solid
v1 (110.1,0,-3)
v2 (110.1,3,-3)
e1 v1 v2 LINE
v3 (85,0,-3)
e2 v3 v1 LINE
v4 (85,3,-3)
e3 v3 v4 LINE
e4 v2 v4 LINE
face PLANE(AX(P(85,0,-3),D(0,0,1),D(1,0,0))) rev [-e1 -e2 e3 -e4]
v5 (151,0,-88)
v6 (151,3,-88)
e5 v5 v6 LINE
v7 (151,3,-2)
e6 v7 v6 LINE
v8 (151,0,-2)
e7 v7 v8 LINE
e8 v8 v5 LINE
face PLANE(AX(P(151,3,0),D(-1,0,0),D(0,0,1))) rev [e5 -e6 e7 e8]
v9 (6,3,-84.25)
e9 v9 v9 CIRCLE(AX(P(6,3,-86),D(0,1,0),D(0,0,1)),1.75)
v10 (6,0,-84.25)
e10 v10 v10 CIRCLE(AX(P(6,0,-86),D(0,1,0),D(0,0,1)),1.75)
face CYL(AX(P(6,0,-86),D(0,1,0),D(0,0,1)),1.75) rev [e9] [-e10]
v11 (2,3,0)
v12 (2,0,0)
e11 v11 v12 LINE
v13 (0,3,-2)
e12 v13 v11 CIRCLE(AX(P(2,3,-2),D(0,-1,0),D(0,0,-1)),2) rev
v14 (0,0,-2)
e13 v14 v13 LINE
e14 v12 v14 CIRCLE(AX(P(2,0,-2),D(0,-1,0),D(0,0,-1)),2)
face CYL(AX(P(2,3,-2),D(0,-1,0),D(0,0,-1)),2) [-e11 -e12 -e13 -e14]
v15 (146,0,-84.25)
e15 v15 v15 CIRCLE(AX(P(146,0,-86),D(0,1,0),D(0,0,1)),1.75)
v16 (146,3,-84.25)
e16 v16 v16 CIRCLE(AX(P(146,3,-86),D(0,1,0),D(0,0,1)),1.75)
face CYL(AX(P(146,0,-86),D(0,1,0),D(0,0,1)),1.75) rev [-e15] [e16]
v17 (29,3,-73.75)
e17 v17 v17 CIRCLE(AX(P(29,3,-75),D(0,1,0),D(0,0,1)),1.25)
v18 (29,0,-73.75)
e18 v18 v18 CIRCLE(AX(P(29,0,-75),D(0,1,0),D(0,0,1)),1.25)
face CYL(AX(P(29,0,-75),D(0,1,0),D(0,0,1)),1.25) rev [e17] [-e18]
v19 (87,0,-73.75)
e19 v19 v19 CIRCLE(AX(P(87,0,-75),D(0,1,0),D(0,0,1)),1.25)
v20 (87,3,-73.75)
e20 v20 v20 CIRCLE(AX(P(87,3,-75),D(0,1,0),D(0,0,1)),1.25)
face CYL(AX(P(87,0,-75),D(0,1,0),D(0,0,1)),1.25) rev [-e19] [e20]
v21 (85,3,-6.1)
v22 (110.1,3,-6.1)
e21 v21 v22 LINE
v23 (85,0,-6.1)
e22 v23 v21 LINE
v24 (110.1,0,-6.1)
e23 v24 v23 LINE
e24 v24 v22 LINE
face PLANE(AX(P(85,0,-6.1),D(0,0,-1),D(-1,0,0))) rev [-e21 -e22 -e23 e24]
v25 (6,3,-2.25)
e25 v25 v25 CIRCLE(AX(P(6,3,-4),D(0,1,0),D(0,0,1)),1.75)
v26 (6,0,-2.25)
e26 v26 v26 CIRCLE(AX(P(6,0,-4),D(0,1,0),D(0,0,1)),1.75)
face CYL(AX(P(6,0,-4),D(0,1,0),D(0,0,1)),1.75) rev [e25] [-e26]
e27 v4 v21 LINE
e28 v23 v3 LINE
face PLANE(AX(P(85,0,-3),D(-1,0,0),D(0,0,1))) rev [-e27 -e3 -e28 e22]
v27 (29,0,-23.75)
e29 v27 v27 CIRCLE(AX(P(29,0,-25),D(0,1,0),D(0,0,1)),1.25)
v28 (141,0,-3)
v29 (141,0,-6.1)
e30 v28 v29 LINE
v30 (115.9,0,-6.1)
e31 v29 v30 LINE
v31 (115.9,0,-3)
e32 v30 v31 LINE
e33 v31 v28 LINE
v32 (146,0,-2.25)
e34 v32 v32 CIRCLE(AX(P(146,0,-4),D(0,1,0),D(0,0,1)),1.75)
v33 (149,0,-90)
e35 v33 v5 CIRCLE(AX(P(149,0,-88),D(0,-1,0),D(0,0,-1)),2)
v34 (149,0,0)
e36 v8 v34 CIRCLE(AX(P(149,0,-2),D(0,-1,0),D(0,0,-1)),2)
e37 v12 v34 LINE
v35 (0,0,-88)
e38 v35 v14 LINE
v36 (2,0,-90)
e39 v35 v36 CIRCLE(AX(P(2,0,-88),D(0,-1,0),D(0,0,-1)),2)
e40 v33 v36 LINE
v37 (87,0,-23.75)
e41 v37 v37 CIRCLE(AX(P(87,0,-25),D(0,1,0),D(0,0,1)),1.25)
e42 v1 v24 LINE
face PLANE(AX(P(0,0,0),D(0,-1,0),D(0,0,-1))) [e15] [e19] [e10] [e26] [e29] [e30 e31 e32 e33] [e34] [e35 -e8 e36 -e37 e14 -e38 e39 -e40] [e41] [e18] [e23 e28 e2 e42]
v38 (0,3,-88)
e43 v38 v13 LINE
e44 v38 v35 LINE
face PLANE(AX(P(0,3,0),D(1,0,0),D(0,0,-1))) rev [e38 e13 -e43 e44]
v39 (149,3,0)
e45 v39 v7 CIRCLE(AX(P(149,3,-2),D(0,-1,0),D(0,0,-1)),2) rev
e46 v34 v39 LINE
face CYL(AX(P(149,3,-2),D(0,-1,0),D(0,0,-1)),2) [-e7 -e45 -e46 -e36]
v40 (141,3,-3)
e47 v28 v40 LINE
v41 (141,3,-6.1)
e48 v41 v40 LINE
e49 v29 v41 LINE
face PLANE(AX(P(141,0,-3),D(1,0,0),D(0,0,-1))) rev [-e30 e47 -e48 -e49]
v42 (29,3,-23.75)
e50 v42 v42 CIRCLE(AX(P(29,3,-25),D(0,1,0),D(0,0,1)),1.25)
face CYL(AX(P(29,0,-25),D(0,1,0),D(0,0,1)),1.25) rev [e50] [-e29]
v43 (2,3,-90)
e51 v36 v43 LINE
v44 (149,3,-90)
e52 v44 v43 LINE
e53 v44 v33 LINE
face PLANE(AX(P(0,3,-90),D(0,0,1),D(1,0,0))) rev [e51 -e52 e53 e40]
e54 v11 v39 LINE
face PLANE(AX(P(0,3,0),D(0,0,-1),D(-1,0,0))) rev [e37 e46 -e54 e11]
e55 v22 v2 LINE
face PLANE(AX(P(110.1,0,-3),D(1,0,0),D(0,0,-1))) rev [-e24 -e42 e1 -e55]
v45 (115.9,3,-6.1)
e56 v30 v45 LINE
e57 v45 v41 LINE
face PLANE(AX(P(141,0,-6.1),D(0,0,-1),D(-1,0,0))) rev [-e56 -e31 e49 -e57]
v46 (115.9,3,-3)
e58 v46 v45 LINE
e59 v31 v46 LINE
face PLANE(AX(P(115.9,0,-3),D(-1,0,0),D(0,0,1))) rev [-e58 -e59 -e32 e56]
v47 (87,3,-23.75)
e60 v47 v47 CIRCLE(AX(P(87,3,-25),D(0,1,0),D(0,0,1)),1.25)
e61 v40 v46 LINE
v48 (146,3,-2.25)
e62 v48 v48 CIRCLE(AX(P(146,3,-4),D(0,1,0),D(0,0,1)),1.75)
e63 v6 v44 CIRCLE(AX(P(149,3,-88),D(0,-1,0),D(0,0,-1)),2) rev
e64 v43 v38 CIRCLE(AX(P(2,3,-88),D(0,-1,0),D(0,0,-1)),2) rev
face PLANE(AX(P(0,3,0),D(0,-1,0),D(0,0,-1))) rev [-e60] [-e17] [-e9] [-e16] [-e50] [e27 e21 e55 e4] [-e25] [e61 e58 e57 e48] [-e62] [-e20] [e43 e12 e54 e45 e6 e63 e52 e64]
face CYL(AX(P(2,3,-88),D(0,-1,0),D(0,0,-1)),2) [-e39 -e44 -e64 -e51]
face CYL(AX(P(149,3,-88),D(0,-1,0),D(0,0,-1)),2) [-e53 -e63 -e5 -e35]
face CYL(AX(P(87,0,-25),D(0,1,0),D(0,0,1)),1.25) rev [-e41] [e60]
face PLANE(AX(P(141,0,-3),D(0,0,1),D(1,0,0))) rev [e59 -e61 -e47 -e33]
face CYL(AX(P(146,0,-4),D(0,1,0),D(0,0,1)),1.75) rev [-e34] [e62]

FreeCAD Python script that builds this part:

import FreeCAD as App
import Part
import Sketcher

V = App.Vector


def edges_at(feature, points):
    """Names of the edges that pass closest to the given points."""
    edges = feature.Shape.Edges
    near = lambda p: min(range(len(edges)), key=lambda i: edges[i].distToShape(Part.Vertex(*p))[0])
    return sorted({f"Edge{near(p) + 1}" for p in points})


def add_polygon(sketch, points):
    """Adds a closed chain of lines whose ends are joined by coincident constraints."""
    first, n = sketch.GeometryCount, len(points)
    for a, b in zip(points, points[1:] + points[:1]):
        sketch.addGeometry(Part.LineSegment(App.Vector(*a, 0), App.Vector(*b, 0)), False)
    for i in range(n):
        sketch.addConstraint(Sketcher.Constraint("Coincident", first + i, 2, first + (i + 1) % n, 1))

doc = App.newDocument("Part")
body = doc.addObject("PartDesign::Body", "Body")

sketch1 = body.newObject("Sketcher::SketchObject", "Sketch")
sketch1.AttachmentSupport = (doc.getObject("XZ_Plane"), [""])
sketch1.MapMode = "FlatFace"
add_polygon(sketch1, [(0, -90), (0, 0), (151, 0), (151, -90)])
sketch1.addConstraint(Sketcher.Constraint("Vertical", 0))
sketch1.addConstraint(Sketcher.Constraint("Horizontal", 1))
sketch1.addConstraint(Sketcher.Constraint("Vertical", 2))
sketch1.addConstraint(Sketcher.Constraint("Horizontal", 3))
sketch1.addConstraint(Sketcher.Constraint("Coincident", 0, 2, -1, 1))
sketch1.addConstraint(Sketcher.Constraint("DistanceX", 1, 1, 1, 2, 151.0))
sketch1.addConstraint(Sketcher.Constraint("DistanceY", 0, 1, 0, 2, 90.0))
pad1 = body.newObject("PartDesign::Pad", "Pad")
pad1.Profile = sketch1
pad1.Length = 3
pad1.Reversed = True

sketch2 = body.newObject("Sketcher::SketchObject", "Sketch001")
sketch2.AttachmentSupport = (doc.getObject("XZ_Plane"), [""])
sketch2.MapMode = "FlatFace"
sketch2.AttachmentOffset = App.Placement(V(0, 0, -3), App.Rotation())
sketch2.addGeometry(Part.Circle(V(146, -86, 0), V(0, 0, 1), 1.75), False)
sketch2.addGeometry(Part.Circle(V(146, -4, 0), V(0, 0, 1), 1.75), False)
sketch2.addGeometry(Part.Circle(V(6, -86, 0), V(0, 0, 1), 1.75), False)
sketch2.addGeometry(Part.Circle(V(6, -4, 0), V(0, 0, 1), 1.75), False)
sketch2.addConstraint(Sketcher.Constraint("Equal", 0, 1))
sketch2.addConstraint(Sketcher.Constraint("Equal", 1, 2))
sketch2.addConstraint(Sketcher.Constraint("Equal", 2, 3))
sketch2.addConstraint(Sketcher.Constraint("Horizontal", 0, 3, 2, 3))
sketch2.addConstraint(Sketcher.Constraint("Horizontal", 1, 3, 3, 3))
sketch2.addConstraint(Sketcher.Constraint("Vertical", 0, 3, 1, 3))
sketch2.addConstraint(Sketcher.Constraint("Vertical", 2, 3, 3, 3))
sketch2.addConstraint(Sketcher.Constraint("Diameter", 0, 3.5))
sketch2.addConstraint(Sketcher.Constraint("DistanceX", -1, 1, 0, 3, 146.0))
sketch2.addConstraint(Sketcher.Constraint("DistanceY", 0, 3, -1, 1, 86.0))
sketch2.addConstraint(Sketcher.Constraint("DistanceY", 1, 3, -1, 1, 4.0))
sketch2.addConstraint(Sketcher.Constraint("DistanceX", -1, 1, 2, 3, 6.0))
pocket1 = body.newObject("PartDesign::Pocket", "Pocket")
pocket1.Profile = sketch2
pocket1.Type = "ThroughAll"
pocket1.Reversed = True
doc.recompute()

fillet = body.newObject("PartDesign::Fillet", "Fillet")
fillet.Base = (pocket1, edges_at(pocket1, [
    (0, 1.5, -90),
    (151, 1.5, -90),
    (151, 1.5, 0),
    (0, 1.5, 0),
]))
fillet.Radius = 2

sketch3 = body.newObject("Sketcher::SketchObject", "Sketch002")
sketch3.AttachmentSupport = (doc.getObject("XZ_Plane"), [""])
sketch3.MapMode = "FlatFace"
sketch3.AttachmentOffset = App.Placement(V(0, 0, -3), App.Rotation())
sketch3.addGeometry(Part.Circle(V(87, -75, 0), V(0, 0, 1), 1.25), False)
sketch3.addGeometry(Part.Circle(V(29, -75, 0), V(0, 0, 1), 1.25), False)
sketch3.addGeometry(Part.Circle(V(87, -25, 0), V(0, 0, 1), 1.25), False)
sketch3.addGeometry(Part.Circle(V(29, -25, 0), V(0, 0, 1), 1.25), False)
sketch3.addConstraint(Sketcher.Constraint("Equal", 0, 1))
sketch3.addConstraint(Sketcher.Constraint("Equal", 1, 2))
sketch3.addConstraint(Sketcher.Constraint("Equal", 2, 3))
sketch3.addConstraint(Sketcher.Constraint("Horizontal", 0, 3, 1, 3))
sketch3.addConstraint(Sketcher.Constraint("Horizontal", 2, 3, 3, 3))
sketch3.addConstraint(Sketcher.Constraint("Vertical", 0, 3, 2, 3))
sketch3.addConstraint(Sketcher.Constraint("Vertical", 1, 3, 3, 3))
sketch3.addConstraint(Sketcher.Constraint("Diameter", 0, 2.5))
sketch3.addConstraint(Sketcher.Constraint("DistanceX", -1, 1, 0, 3, 87.0))
sketch3.addConstraint(Sketcher.Constraint("DistanceY", 0, 3, -1, 1, 75.0))
sketch3.addConstraint(Sketcher.Constraint("DistanceX", -1, 1, 1, 3, 29.0))
sketch3.addConstraint(Sketcher.Constraint("DistanceY", 2, 3, -1, 1, 25.0))
pocket2 = body.newObject("PartDesign::Pocket", "Pocket001")
pocket2.Profile = sketch3
pocket2.Type = "ThroughAll"
pocket2.Reversed = True

sketch4 = body.newObject("Sketcher::SketchObject", "Sketch003")
sketch4.AttachmentSupport = (doc.getObject("XZ_Plane"), [""])
sketch4.MapMode = "FlatFace"
sketch4.AttachmentOffset = App.Placement(V(0, 0, -3), App.Rotation())
add_polygon(sketch4, [(85, -6.1), (85, -3), (110.1, -3), (110.1, -6.1)])
add_polygon(sketch4, [(115.9, -6.1), (115.9, -3), (141, -3), (141, -6.1)])
sketch4.addConstraint(Sketcher.Constraint("Vertical", 0))
sketch4.addConstraint(Sketcher.Constraint("Horizontal", 1))
sketch4.addConstraint(Sketcher.Constraint("Vertical", 2))
sketch4.addConstraint(Sketcher.Constraint("Horizontal", 3))
sketch4.addConstraint(Sketcher.Constraint("Vertical", 4))
sketch4.addConstraint(Sketcher.Constraint("Horizontal", 5))
sketch4.addConstraint(Sketcher.Constraint("Vertical", 6))
sketch4.addConstraint(Sketcher.Constraint("Horizontal", 7))
sketch4.addConstraint(Sketcher.Constraint("Horizontal", 1, 2, 4, 2))
sketch4.addConstraint(Sketcher.Constraint("Horizontal", 3, 2, 6, 2))
sketch4.addConstraint(Sketcher.Constraint("Equal", 3, 5))
sketch4.addConstraint(Sketcher.Constraint("DistanceX", 1, 1, 1, 2, 25.1))
sketch4.addConstraint(Sketcher.Constraint("DistanceY", 0, 1, 0, 2, 3.1))
sketch4.addConstraint(Sketcher.Constraint("DistanceX", -1, 1, 0, 2, 85.0))
sketch4.addConstraint(Sketcher.Constraint("DistanceY", 0, 2, -1, 1, 3.0))
sketch4.addConstraint(Sketcher.Constraint("DistanceX", -1, 1, 5, 2, 141.0))
pocket3 = body.newObject("PartDesign::Pocket", "Pocket002")
pocket3.Profile = sketch4
pocket3.Type = "ThroughAll"
pocket3.Midplane = True

doc.recompute()
